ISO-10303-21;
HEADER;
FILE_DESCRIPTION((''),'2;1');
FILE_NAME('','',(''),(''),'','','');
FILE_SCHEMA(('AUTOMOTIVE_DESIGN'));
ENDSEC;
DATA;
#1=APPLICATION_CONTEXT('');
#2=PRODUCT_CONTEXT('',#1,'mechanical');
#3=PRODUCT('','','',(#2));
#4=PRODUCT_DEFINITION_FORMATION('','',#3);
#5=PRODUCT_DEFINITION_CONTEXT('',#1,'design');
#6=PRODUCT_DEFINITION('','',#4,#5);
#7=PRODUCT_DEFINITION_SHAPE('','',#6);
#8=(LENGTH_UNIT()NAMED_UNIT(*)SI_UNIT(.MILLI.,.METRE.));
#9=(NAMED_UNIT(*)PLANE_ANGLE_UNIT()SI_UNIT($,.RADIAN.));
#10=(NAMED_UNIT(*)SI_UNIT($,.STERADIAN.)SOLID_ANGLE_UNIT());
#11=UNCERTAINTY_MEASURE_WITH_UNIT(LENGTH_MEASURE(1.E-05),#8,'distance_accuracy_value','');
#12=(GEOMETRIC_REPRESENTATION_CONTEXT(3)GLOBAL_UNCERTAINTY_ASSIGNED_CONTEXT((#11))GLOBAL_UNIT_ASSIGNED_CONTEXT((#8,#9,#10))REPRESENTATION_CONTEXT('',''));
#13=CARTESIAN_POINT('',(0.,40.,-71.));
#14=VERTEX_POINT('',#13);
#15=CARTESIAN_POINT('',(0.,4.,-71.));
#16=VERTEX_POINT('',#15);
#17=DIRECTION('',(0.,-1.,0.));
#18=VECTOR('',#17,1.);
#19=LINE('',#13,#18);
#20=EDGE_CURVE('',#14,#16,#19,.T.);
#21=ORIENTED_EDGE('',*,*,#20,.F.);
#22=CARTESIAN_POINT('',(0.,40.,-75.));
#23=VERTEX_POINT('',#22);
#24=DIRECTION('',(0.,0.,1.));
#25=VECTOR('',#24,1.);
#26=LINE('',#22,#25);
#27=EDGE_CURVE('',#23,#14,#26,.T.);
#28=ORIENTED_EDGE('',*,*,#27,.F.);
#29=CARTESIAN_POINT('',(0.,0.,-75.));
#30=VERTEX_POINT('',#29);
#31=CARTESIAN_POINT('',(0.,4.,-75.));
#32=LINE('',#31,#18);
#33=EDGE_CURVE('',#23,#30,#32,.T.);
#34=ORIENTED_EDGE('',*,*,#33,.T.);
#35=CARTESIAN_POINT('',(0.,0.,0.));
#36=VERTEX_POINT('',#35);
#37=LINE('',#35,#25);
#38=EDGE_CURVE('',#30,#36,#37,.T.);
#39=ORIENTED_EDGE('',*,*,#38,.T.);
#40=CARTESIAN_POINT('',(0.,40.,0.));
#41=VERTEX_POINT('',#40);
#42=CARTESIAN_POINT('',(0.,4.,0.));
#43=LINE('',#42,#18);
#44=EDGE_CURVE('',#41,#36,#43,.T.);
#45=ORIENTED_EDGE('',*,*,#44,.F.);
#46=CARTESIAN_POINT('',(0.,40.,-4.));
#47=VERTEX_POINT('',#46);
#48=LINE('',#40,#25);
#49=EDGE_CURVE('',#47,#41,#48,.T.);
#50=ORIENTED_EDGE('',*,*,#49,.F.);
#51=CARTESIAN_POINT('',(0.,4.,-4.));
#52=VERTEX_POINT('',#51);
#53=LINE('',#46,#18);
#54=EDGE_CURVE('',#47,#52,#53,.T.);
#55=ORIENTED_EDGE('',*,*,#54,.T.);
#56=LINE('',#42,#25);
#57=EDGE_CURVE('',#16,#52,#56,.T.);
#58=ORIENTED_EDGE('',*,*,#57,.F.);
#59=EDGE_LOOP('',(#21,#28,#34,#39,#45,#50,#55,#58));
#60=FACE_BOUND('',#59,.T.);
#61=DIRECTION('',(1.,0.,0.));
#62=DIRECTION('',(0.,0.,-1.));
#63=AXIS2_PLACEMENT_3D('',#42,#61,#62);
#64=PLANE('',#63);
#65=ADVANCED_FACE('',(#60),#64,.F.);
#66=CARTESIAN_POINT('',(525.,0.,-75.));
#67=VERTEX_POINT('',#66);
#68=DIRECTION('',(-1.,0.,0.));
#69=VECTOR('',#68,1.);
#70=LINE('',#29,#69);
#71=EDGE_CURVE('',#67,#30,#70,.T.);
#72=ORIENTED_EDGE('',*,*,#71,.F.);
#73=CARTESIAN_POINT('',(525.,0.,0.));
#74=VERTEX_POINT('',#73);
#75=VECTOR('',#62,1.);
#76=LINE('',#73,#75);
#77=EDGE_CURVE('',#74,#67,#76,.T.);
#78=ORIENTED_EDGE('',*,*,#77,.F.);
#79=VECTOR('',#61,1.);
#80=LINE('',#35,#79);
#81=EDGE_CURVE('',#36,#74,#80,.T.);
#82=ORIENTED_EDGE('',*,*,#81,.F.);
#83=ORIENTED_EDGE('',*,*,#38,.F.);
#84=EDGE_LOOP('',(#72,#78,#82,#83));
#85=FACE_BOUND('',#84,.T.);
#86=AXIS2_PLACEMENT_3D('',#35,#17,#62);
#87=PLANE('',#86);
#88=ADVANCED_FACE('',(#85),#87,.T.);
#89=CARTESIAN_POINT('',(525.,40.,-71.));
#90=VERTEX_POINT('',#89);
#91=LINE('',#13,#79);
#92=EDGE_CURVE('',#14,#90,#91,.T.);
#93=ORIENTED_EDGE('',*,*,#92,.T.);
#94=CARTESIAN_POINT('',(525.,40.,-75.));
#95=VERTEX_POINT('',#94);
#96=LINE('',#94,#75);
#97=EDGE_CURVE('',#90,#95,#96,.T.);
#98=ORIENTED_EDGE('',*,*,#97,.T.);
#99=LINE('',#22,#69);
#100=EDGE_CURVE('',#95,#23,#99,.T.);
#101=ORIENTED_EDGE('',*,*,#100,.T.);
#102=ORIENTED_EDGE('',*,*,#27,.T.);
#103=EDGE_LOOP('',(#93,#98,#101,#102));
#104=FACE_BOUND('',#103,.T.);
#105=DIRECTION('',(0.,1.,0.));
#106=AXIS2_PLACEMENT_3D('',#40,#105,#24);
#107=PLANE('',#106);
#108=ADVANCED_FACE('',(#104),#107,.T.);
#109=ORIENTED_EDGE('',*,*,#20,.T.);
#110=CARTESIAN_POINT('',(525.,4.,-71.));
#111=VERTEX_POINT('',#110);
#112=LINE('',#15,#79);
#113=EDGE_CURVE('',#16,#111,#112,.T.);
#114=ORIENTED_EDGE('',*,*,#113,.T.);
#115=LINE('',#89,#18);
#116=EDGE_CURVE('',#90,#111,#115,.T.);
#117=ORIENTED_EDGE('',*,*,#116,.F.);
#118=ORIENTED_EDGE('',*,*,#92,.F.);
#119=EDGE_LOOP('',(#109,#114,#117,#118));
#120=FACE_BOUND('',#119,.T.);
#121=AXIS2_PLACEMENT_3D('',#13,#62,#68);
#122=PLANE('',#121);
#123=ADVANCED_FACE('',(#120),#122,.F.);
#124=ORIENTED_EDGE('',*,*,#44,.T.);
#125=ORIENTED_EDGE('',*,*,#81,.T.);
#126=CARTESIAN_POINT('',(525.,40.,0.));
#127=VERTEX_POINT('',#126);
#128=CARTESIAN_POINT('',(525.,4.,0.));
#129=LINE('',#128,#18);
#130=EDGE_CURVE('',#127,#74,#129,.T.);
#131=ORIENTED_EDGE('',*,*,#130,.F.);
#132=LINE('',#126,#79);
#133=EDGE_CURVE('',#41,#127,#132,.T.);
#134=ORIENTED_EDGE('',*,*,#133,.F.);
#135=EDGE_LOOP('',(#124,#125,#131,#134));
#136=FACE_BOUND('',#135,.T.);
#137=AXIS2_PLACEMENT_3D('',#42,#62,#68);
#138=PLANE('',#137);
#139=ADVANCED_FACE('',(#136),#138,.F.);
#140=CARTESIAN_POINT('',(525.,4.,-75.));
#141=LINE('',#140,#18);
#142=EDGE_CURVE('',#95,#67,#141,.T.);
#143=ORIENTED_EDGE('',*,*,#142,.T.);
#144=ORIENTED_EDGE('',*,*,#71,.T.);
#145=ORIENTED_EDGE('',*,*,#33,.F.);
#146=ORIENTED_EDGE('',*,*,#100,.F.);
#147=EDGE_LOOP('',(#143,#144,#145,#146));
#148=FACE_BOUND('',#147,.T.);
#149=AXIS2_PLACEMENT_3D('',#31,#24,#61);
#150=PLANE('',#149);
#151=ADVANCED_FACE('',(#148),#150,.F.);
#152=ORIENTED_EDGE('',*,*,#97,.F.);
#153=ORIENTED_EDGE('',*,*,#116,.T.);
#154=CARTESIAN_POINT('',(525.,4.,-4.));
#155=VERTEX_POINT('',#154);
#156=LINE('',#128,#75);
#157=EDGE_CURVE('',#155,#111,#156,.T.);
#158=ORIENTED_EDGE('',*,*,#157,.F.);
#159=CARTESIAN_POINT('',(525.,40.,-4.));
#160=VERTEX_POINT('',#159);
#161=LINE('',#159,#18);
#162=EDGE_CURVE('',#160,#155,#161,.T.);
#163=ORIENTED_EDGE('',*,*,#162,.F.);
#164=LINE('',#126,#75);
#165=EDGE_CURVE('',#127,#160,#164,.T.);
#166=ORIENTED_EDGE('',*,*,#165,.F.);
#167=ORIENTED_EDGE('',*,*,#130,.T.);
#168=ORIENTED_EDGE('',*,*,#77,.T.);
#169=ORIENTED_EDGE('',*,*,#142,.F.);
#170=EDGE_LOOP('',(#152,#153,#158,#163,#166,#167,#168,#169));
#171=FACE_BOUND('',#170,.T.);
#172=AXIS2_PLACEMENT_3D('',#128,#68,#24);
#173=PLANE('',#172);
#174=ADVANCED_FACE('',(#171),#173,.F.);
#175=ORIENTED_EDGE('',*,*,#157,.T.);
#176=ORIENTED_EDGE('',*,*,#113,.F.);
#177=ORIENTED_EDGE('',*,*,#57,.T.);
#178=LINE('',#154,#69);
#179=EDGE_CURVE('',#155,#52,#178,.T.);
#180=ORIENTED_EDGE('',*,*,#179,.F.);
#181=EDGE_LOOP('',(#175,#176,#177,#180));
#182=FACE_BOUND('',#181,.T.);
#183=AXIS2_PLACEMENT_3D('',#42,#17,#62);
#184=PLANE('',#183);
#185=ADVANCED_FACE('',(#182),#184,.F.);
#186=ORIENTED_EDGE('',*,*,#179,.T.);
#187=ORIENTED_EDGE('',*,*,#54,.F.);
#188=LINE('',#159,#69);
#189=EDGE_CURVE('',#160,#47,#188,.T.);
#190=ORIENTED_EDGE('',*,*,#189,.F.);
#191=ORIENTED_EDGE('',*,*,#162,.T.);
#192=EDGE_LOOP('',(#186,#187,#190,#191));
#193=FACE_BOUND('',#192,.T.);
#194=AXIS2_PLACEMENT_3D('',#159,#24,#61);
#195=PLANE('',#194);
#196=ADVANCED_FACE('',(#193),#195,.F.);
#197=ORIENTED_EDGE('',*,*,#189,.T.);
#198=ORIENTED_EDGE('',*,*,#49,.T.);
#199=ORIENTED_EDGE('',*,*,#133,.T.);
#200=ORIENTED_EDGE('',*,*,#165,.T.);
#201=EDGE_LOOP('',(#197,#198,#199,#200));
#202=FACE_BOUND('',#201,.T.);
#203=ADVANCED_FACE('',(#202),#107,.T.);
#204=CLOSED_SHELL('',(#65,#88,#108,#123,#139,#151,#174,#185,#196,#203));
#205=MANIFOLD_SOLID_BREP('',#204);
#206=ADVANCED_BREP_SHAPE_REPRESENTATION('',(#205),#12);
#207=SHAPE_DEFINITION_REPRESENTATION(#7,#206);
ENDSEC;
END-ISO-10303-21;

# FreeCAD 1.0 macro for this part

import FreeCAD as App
import Part
import Sketcher
from FreeCAD import Vector

doc = App.newDocument("Part")
body = doc.addObject("PartDesign::Body", "Body")

# Sketch on XZ plane
sketch1 = body.newObject("Sketcher::SketchObject", "Sketch")
sketch1.AttachmentSupport = (doc.getObject("XZ_Plane"), [""])
sketch1.MapMode = "FlatFace"
sketch1.addGeometry([
    Part.LineSegment(Vector(0, -75, 0), Vector(0, 0, 0)),
    Part.LineSegment(Vector(0, 0, 0), Vector(525, 0, 0)),
    Part.LineSegment(Vector(525, 0, 0), Vector(525, -75, 0)),
    Part.LineSegment(Vector(525, -75, 0), Vector(0, -75, 0)),
], False)
sketch1.addConstraint([
    Sketcher.Constraint("Coincident", 0, 2, 1, 1),
    Sketcher.Constraint("Coincident", 1, 2, 2, 1),
    Sketcher.Constraint("Coincident", 2, 2, 3, 1),
    Sketcher.Constraint("Coincident", 3, 2, 0, 1),
    Sketcher.Constraint("Vertical", 0),
    Sketcher.Constraint("Horizontal", 1),
    Sketcher.Constraint("Vertical", 2),
    Sketcher.Constraint("Horizontal", 3),
    Sketcher.Constraint("Coincident", 0, 2, -1, 1),
    Sketcher.Constraint("DistanceX", 1, 1, 1, 2, 525.0),
    Sketcher.Constraint("DistanceY", 0, 1, 0, 2, 75.0),
])
pad1 = body.newObject("PartDesign::Pad", "Pad")
pad1.Profile = sketch1
pad1.Length = 4
pad1.Reversed = True

# Sketch on XZ plane
sketch2 = body.newObject("Sketcher::SketchObject", "Sketch001")
sketch2.AttachmentSupport = (doc.getObject("XZ_Plane"), [""])
sketch2.MapMode = "FlatFace"
sketch2.AttachmentOffset = App.Placement(Vector(0, 0, -4), App.Rotation())
sketch2.addGeometry([
    Part.LineSegment(Vector(0, -75, 0), Vector(0, -71, 0)),  # 0
    Part.LineSegment(Vector(0, -71, 0), Vector(525, -71, 0)),  # 1
    Part.LineSegment(Vector(525, -71, 0), Vector(525, -75, 0)),  # 2
    Part.LineSegment(Vector(525, -75, 0), Vector(0, -75, 0)),  # 3
    Part.LineSegment(Vector(0, -4, 0), Vector(0, 0, 0)),  # 4
    Part.LineSegment(Vector(0, 0, 0), Vector(525, 0, 0)),  # 5
    Part.LineSegment(Vector(525, 0, 0), Vector(525, -4, 0)),  # 6
    Part.LineSegment(Vector(525, -4, 0), Vector(0, -4, 0)),  # 7
], False)
sketch2.addConstraint([
    Sketcher.Constraint("Coincident", 0, 2, 1, 1),
    Sketcher.Constraint("Coincident", 1, 2, 2, 1),
    Sketcher.Constraint("Coincident", 2, 2, 3, 1),
    Sketcher.Constraint("Coincident", 3, 2, 0, 1),
    Sketcher.Constraint("Coincident", 4, 2, 5, 1),
    Sketcher.Constraint("Coincident", 5, 2, 6, 1),
    Sketcher.Constraint("Coincident", 6, 2, 7, 1),
    Sketcher.Constraint("Coincident", 7, 2, 4, 1),
    Sketcher.Constraint("Vertical", 0),
    Sketcher.Constraint("Horizontal", 1),
    Sketcher.Constraint("Vertical", 2),
    Sketcher.Constraint("Horizontal", 3),
    Sketcher.Constraint("Vertical", 4),
    Sketcher.Constraint("Horizontal", 5),
    Sketcher.Constraint("Vertical", 6),
    Sketcher.Constraint("Horizontal", 7),
    Sketcher.Constraint("Coincident", 4, 2, -1, 1),
    Sketcher.Constraint("PointOnObject", 0, 2, -2),
    Sketcher.Constraint("Vertical", 2, 2, 5, 2),
    Sketcher.Constraint("Equal", 2, 4),
    Sketcher.Constraint("DistanceX", 1, 1, 1, 2, 525.0),
    Sketcher.Constraint("DistanceY", 0, 1, 0, 2, 4.0),
    Sketcher.Constraint("DistanceY", 0, 2, -1, 1, 71.0),
])
pad2 = body.newObject("PartDesign::Pad", "Pad001")
pad2.Profile = sketch2
pad2.Length = 36
pad2.Reversed = True

doc.recompute()
